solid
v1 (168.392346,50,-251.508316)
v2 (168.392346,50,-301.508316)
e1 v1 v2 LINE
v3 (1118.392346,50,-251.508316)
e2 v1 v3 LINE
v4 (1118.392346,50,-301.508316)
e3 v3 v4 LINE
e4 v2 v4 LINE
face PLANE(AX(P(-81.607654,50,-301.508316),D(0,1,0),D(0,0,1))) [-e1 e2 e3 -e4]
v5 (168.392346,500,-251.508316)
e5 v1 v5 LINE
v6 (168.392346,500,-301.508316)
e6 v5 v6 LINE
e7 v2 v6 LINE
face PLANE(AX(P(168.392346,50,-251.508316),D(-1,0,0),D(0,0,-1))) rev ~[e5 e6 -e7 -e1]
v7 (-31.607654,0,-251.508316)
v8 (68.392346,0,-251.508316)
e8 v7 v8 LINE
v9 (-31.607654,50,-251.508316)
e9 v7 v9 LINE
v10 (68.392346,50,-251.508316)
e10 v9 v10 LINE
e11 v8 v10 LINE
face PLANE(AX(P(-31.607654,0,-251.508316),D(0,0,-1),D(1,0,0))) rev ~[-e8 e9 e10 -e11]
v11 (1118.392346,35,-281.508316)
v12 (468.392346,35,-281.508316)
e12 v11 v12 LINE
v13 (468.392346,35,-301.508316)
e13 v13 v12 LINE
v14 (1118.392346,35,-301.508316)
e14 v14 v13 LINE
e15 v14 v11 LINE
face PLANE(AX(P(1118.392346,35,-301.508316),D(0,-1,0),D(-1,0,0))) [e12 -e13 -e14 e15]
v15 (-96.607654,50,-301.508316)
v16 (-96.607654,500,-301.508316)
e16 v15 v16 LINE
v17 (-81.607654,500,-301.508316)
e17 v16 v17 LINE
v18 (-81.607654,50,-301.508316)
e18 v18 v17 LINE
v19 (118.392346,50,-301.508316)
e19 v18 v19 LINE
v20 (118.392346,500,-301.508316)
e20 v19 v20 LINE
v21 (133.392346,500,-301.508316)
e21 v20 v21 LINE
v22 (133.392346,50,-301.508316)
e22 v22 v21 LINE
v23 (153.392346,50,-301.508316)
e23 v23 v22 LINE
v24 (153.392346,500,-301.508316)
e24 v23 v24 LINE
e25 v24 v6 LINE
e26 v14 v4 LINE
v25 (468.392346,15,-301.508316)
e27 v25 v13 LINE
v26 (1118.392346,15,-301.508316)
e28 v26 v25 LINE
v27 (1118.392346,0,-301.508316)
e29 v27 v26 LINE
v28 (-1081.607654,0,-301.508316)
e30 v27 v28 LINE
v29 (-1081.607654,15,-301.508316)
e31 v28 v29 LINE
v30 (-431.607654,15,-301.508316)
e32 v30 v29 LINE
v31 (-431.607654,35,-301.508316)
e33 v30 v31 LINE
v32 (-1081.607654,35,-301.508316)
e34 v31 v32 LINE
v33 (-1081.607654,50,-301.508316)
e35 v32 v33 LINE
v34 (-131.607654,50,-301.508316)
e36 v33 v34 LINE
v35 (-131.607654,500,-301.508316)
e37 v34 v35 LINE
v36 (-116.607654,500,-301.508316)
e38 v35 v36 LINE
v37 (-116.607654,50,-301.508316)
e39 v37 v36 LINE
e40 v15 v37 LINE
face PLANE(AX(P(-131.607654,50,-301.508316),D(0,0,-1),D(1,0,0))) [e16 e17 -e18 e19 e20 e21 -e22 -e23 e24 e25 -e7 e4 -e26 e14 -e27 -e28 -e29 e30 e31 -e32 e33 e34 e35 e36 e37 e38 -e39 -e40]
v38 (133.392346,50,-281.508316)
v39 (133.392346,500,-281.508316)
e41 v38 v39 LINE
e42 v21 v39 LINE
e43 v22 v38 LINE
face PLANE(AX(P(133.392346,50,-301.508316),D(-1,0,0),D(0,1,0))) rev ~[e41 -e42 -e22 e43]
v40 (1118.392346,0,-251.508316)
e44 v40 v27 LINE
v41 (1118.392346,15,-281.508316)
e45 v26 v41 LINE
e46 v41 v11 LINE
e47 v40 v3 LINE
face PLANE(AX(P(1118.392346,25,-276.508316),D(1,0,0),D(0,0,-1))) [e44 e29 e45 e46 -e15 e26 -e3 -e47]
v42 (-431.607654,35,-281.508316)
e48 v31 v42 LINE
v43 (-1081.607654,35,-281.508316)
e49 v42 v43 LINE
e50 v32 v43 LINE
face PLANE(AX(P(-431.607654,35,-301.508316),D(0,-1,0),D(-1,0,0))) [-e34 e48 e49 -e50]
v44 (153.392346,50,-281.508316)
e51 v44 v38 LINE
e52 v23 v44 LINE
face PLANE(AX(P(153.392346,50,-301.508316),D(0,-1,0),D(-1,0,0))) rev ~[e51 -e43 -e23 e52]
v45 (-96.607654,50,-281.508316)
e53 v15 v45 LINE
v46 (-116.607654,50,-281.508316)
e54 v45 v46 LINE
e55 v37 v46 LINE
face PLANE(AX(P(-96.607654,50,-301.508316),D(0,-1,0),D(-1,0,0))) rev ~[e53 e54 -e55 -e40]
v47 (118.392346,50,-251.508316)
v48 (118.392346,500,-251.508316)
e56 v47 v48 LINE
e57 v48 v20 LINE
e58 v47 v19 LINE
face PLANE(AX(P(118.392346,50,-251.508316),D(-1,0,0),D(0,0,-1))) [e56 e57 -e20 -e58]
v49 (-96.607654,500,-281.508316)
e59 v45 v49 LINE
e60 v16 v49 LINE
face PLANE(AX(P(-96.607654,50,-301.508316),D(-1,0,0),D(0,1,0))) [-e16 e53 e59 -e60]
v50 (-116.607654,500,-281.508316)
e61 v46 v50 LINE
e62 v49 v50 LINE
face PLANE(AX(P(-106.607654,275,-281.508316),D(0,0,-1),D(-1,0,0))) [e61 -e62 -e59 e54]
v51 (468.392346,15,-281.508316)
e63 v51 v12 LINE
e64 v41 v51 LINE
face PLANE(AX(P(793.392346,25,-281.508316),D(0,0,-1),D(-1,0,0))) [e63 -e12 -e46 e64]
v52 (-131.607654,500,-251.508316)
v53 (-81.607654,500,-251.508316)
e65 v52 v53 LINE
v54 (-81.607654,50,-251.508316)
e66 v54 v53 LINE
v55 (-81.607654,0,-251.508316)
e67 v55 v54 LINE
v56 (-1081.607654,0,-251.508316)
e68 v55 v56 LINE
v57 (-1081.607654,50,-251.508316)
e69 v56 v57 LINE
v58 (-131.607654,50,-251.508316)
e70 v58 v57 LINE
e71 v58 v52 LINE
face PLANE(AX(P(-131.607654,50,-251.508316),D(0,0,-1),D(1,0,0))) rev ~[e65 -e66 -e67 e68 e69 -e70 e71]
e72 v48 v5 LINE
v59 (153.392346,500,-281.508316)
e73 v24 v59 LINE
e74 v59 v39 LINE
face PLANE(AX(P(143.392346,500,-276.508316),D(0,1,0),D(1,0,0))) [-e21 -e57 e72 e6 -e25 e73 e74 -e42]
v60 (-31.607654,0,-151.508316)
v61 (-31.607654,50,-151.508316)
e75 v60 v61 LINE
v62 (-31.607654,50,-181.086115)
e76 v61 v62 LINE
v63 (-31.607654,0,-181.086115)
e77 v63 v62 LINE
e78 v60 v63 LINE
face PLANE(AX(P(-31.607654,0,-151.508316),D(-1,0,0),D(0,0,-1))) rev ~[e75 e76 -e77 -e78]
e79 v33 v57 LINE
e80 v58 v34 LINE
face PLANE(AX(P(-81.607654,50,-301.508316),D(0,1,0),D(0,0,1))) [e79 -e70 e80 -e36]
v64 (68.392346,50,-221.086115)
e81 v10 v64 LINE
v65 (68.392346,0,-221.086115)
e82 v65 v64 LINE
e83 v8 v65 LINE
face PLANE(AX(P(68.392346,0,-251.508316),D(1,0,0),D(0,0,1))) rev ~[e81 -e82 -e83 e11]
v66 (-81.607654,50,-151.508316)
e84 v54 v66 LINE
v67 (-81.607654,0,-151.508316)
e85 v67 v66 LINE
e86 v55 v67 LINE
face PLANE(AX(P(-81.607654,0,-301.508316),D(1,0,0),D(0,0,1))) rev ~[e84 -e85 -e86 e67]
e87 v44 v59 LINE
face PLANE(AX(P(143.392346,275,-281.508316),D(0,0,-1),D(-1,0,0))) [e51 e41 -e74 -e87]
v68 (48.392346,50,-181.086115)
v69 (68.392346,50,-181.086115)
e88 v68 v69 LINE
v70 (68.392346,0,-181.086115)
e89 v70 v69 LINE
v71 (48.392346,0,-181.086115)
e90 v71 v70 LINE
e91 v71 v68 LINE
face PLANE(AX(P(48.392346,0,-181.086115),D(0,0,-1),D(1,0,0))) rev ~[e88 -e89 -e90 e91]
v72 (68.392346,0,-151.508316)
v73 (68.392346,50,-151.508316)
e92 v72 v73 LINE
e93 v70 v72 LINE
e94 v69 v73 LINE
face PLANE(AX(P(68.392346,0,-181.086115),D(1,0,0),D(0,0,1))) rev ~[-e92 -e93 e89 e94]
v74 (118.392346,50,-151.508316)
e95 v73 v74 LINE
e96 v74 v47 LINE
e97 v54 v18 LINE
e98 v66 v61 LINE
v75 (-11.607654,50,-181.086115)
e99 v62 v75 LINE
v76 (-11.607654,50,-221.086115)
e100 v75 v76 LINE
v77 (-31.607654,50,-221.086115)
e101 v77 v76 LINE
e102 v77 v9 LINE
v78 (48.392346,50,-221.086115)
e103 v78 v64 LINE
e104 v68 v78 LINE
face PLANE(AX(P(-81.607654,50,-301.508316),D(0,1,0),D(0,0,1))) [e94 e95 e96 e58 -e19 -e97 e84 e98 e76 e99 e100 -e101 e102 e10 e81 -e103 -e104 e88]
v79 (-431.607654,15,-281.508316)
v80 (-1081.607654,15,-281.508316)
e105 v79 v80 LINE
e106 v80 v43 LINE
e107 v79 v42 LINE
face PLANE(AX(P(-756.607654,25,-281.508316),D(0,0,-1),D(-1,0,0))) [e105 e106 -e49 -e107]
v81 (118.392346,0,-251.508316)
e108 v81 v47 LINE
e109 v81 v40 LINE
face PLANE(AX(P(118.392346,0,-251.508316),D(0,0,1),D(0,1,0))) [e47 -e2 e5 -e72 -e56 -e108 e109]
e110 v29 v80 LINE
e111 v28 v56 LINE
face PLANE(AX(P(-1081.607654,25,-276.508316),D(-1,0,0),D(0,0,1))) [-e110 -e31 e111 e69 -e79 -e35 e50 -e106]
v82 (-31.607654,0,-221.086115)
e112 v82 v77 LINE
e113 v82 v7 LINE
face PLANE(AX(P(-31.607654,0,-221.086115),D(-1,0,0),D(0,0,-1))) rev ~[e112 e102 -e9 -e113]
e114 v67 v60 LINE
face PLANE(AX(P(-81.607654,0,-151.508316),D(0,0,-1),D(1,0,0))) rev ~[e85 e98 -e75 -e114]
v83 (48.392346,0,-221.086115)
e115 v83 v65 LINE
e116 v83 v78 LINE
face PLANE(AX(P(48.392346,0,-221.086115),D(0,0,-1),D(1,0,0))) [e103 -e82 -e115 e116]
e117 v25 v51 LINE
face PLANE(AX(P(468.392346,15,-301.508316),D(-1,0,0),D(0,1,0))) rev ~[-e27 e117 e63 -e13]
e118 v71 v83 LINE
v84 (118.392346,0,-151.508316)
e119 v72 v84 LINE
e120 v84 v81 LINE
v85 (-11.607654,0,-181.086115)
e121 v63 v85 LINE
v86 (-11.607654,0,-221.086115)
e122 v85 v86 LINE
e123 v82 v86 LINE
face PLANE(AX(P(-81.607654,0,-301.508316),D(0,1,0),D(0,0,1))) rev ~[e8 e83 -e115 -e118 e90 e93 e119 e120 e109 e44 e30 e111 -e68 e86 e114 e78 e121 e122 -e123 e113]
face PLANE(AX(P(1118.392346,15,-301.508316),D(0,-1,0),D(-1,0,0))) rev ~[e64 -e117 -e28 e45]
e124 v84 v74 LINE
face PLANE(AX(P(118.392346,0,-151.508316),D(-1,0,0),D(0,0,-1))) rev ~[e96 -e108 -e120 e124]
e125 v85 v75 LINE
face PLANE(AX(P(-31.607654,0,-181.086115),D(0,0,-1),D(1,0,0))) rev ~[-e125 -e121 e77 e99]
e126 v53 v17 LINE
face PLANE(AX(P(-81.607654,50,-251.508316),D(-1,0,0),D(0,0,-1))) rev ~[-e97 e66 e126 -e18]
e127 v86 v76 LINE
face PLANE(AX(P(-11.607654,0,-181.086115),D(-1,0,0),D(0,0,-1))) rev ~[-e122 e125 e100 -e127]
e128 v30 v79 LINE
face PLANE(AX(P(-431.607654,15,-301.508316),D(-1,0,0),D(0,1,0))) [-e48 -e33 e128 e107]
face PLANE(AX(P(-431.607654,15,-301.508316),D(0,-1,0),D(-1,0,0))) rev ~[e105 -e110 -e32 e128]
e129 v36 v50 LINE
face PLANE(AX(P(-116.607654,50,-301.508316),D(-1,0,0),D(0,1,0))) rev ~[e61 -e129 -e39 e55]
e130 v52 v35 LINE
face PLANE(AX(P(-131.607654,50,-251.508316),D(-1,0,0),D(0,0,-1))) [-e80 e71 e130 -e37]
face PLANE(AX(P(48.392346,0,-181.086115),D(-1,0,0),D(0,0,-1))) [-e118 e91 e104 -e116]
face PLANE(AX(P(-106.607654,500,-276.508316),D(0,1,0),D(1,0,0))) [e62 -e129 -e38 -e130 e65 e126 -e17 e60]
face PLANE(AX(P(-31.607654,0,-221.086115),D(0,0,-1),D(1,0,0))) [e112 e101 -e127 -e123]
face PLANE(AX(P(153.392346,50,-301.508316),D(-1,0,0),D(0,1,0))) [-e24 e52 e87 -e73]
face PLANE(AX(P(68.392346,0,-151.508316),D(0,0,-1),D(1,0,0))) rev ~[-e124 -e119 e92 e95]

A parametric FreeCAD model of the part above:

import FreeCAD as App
import Part
import Sketcher
from FreeCAD import Vector
Q = App.Units.Quantity


def add_polygon(sketch, points):
    """Adds a closed chain of lines whose ends are joined by coincident constraints."""
    first, n = sketch.GeometryCount, len(points)
    for a, b in zip(points, points[1:] + points[:1]):
        sketch.addGeometry(Part.LineSegment(App.Vector(*a, 0), App.Vector(*b, 0)), False)
    for i in range(n):
        sketch.addConstraint(Sketcher.Constraint("Coincident", first + i, 2, first + (i + 1) % n, 1))

doc = App.newDocument("Part")
body = doc.addObject("PartDesign::Body", "Body")

# Sketch on XZ plane
sketch1 = body.newObject("Sketcher::SketchObject", "Sketch")
sketch1.AttachmentSupport = (doc.getObject("XZ_Plane"), [""])
sketch1.MapMode = "FlatFace"
add_polygon(sketch1, [(-32, -252), (68, -252), (68, -221), (48, -221), (48, -181), (68, -181), (68, -152), (118, -152), (118, -302), (-82, -302), (-82, -152), (-32, -152), (-32, -181), (-12, -181), (-12, -221), (-32, -221)])  # lines 0-15
sketch1.addConstraint(Sketcher.Constraint("Horizontal", 0))
sketch1.addConstraint(Sketcher.Constraint("Vertical", 1))
sketch1.addConstraint(Sketcher.Constraint("Horizontal", 2))
sketch1.addConstraint(Sketcher.Constraint("Vertical", 3))
sketch1.addConstraint(Sketcher.Constraint("Horizontal", 4))
sketch1.addConstraint(Sketcher.Constraint("Vertical", 5))
sketch1.addConstraint(Sketcher.Constraint("Horizontal", 6))
sketch1.addConstraint(Sketcher.Constraint("Vertical", 7))
sketch1.addConstraint(Sketcher.Constraint("Horizontal", 8))
sketch1.addConstraint(Sketcher.Constraint("Vertical", 9))
sketch1.addConstraint(Sketcher.Constraint("Horizontal", 10))
sketch1.addConstraint(Sketcher.Constraint("Vertical", 11))
sketch1.addConstraint(Sketcher.Constraint("Horizontal", 12))
sketch1.addConstraint(Sketcher.Constraint("Vertical", 13))
sketch1.addConstraint(Sketcher.Constraint("Horizontal", 14))
sketch1.addConstraint(Sketcher.Constraint("Vertical", 15))
sketch1.addConstraint(Sketcher.Constraint("Horizontal", 6, 2, 9, 2))
sketch1.addConstraint(Sketcher.Constraint("Horizontal", 4, 2, 11, 2))
sketch1.addConstraint(Sketcher.Constraint("Horizontal", 2, 2, 13, 2))
sketch1.addConstraint(Sketcher.Constraint("Vertical", 1, 2, 4, 2))
sketch1.addConstraint(Sketcher.Constraint("Vertical", 11, 2, 14, 2))
sketch1.addConstraint(Sketcher.Constraint("Equal", 6, 10))
sketch1.addConstraint(Sketcher.Constraint("Equal", 4, 12))
sketch1.addConstraint(Sketcher.Constraint("DistanceX", 0, 1, 0, 2, Q("100 mm")))
sketch1.addConstraint(Sketcher.Constraint("DistanceX", 2, 2, 2, 1, Q("20 mm")))
sketch1.addConstraint(Sketcher.Constraint("DistanceX", 6, 1, 6, 2, Q("50 mm")))
sketch1.addConstraint(Sketcher.Constraint("DistanceY", 3, 1, 3, 2, Q("40 mm")))
sketch1.addConstraint(Sketcher.Constraint("DistanceY", 7, 2, 7, 1, Q("150 mm")))
sketch1.addConstraint(Sketcher.Constraint("DistanceY", 0, 2, 5, 2, Q("100 mm")))
sketch1.addConstraint(Sketcher.Constraint("DistanceY", 1, 1, 1, 2, Q("30.422201 mm")))
sketch1.addConstraint(Sketcher.Constraint("DistanceX", -1, 1, 0, 2, Q("68.392346 mm")))
sketch1.addConstraint(Sketcher.Constraint("DistanceY", 0, 2, -1, 1, Q("251.508316 mm")))
pad1 = body.newObject("PartDesign::Pad", "Pad")
pad1.Profile = sketch1
pad1.Length = 50
pad1.Reversed = True

# Sketch on YZ plane
sketch2 = body.newObject("Sketcher::SketchObject", "Sketch001")
sketch2.AttachmentSupport = (doc.getObject("YZ_Plane"), [""])
sketch2.MapMode = "FlatFace"
sketch2.AttachmentOffset = App.Placement(Vector(0, 0, 118.392346), App.Rotation())
add_polygon(sketch2, [(50, -252), (0, -252), (0, -302), (50, -302)])  # lines 0-3
sketch2.addConstraint(Sketcher.Constraint("Horizontal", 0))
sketch2.addConstraint(Sketcher.Constraint("Vertical", 1))
sketch2.addConstraint(Sketcher.Constraint("Horizontal", 2))
sketch2.addConstraint(Sketcher.Constraint("Vertical", 3))
sketch2.addConstraint(Sketcher.Constraint("PointOnObject", 0, 2, -2))
sketch2.addConstraint(Sketcher.Constraint("Equal", 2, 1))
sketch2.addConstraint(Sketcher.Constraint("DistanceX", 0, 2, 0, 1, Q("50 mm")))
sketch2.addConstraint(Sketcher.Constraint("DistanceY", 0, 2, -1, 1, Q("251.508316 mm")))
pad2 = body.newObject("PartDesign::Pad", "Pad001")
pad2.Profile = sketch2
pad2.Length = 1000

# Sketch on YZ plane
sketch3 = body.newObject("Sketcher::SketchObject", "Sketch002")
sketch3.AttachmentSupport = (doc.getObject("YZ_Plane"), [""])
sketch3.MapMode = "FlatFace"
sketch3.AttachmentOffset = App.Placement(Vector(0, 0, -81.607654), App.Rotation())
add_polygon(sketch3, [(50, -302), (0, -302), (0, -252), (50, -252)])  # lines 0-3
sketch3.addConstraint(Sketcher.Constraint("Horizontal", 0))
sketch3.addConstraint(Sketcher.Constraint("Vertical", 1))
sketch3.addConstraint(Sketcher.Constraint("Horizontal", 2))
sketch3.addConstraint(Sketcher.Constraint("Vertical", 3))
sketch3.addConstraint(Sketcher.Constraint("PointOnObject", 0, 2, -2))
sketch3.addConstraint(Sketcher.Constraint("Equal", 2, 1))
sketch3.addConstraint(Sketcher.Constraint("DistanceX", 0, 2, 0, 1, Q("50 mm")))
sketch3.addConstraint(Sketcher.Constraint("DistanceY", 0, 2, -1, 1, Q("301.508316 mm")))
pad3 = body.newObject("PartDesign::Pad", "Pad002")
pad3.Profile = sketch3
pad3.Length = 1000
pad3.Reversed = True

# Sketch on XZ plane
sketch4 = body.newObject("Sketcher::SketchObject", "Sketch003")
sketch4.AttachmentSupport = (doc.getObject("XZ_Plane"), [""])
sketch4.MapMode = "FlatFace"
sketch4.AttachmentOffset = App.Placement(Vector(0, 0, -50), App.Rotation())
add_polygon(sketch4, [(-132, -302), (-132, -252), (-82, -252), (-82, -302)])  # lines 0-3
add_polygon(sketch4, [(118, -302), (118, -252), (168, -252), (168, -302)])  # lines 4-7
sketch4.addConstraint(Sketcher.Constraint("Vertical", 0))
sketch4.addConstraint(Sketcher.Constraint("Horizontal", 1))
sketch4.addConstraint(Sketcher.Constraint("Vertical", 2))
sketch4.addConstraint(Sketcher.Constraint("Horizontal", 3))
sketch4.addConstraint(Sketcher.Constraint("Vertical", 4))
sketch4.addConstraint(Sketcher.Constraint("Horizontal", 5))
sketch4.addConstraint(Sketcher.Constraint("Vertical", 6))
sketch4.addConstraint(Sketcher.Constraint("Horizontal", 7))
sketch4.addConstraint(Sketcher.Constraint("Horizontal", 1, 2, 4, 2))
sketch4.addConstraint(Sketcher.Constraint("Horizontal", 3, 2, 6, 2))
sketch4.addConstraint(Sketcher.Constraint("Equal", 3, 5))
sketch4.addConstraint(Sketcher.Constraint("Equal", 7, 0))
sketch4.addConstraint(Sketcher.Constraint("DistanceX", 1, 1, 1, 2, Q("50 mm")))
sketch4.addConstraint(Sketcher.Constraint("DistanceX", 1, 2, 4, 2, Q("200 mm")))
sketch4.addConstraint(Sketcher.Constraint("DistanceX", 0, 2, -1, 1, Q("131.607654 mm")))
sketch4.addConstraint(Sketcher.Constraint("DistanceY", 0, 2, -1, 1, Q("251.508316 mm")))
pad4 = body.newObject("PartDesign::Pad", "Pad003")
pad4.Profile = sketch4
pad4.Length = 450
pad4.Reversed = True

# Sketch on XY plane
sketch5 = body.newObject("Sketcher::SketchObject", "Sketch004")
sketch5.AttachmentSupport = (doc.getObject("XY_Plane"), [""])
sketch5.MapMode = "FlatFace"
sketch5.AttachmentOffset = App.Placement(Vector(0, 0, -301.508316), App.Rotation())
add_polygon(sketch5, [(-432, 35), (-432, 15), (-1082, 15), (-1082, 35)])  # lines 0-3
add_polygon(sketch5, [(1118, 35), (1118, 15), (468, 15), (468, 35)])  # lines 4-7
sketch5.addConstraint(Sketcher.Constraint("Vertical", 0))
sketch5.addConstraint(Sketcher.Constraint("Horizontal", 1))
sketch5.addConstraint(Sketcher.Constraint("Vertical", 2))
sketch5.addConstraint(Sketcher.Constraint("Horizontal", 3))
sketch5.addConstraint(Sketcher.Constraint("Vertical", 4))
sketch5.addConstraint(Sketcher.Constraint("Horizontal", 5))
sketch5.addConstraint(Sketcher.Constraint("Vertical", 6))
sketch5.addConstraint(Sketcher.Constraint("Horizontal", 7))
sketch5.addConstraint(Sketcher.Constraint("Horizontal", 1, 2, 4, 2))
sketch5.addConstraint(Sketcher.Constraint("Horizontal", 3, 2, 6, 2))
sketch5.addConstraint(Sketcher.Constraint("Equal", 3, 5))
sketch5.addConstraint(Sketcher.Constraint("DistanceX", 1, 2, 1, 1, Q("650 mm")))
sketch5.addConstraint(Sketcher.Constraint("DistanceY", 0, 2, 0, 1, Q("20 mm")))
sketch5.addConstraint(Sketcher.Constraint("DistanceY", -1, 1, 0, 2, Q("15 mm")))
sketch5.addConstraint(Sketcher.Constraint("DistanceX", 0, 2, 4, 2, Q("1550 mm")))
sketch5.addConstraint(Sketcher.Constraint("DistanceX", 0, 2, -1, 1, Q("431.607654 mm")))
pocket1 = body.newObject("PartDesign::Pocket", "Pocket")
pocket1.Profile = sketch5
pocket1.Length = 20
pocket1.Reversed = True

# Sketch on XY plane
sketch6 = body.newObject("Sketcher::SketchObject", "Sketch005")
sketch6.AttachmentSupport = (doc.getObject("XY_Plane"), [""])
sketch6.MapMode = "FlatFace"
sketch6.AttachmentOffset = App.Placement(Vector(0, 0, -301.508316), App.Rotation())
add_polygon(sketch6, [(153, 500), (153, 50), (133, 50), (133, 500)])  # lines 0-3
add_polygon(sketch6, [(-97, 500), (-97, 50), (-117, 50), (-117, 500)])  # lines 4-7
sketch6.addConstraint(Sketcher.Constraint("Vertical", 0))
sketch6.addConstraint(Sketcher.Constraint("Horizontal", 1))
sketch6.addConstraint(Sketcher.Constraint("Vertical", 2))
sketch6.addConstraint(Sketcher.Constraint("Horizontal", 3))
sketch6.addConstraint(Sketcher.Constraint("Vertical", 4))
sketch6.addConstraint(Sketcher.Constraint("Horizontal", 5))
sketch6.addConstraint(Sketcher.Constraint("Vertical", 6))
sketch6.addConstraint(Sketcher.Constraint("Horizontal", 7))
sketch6.addConstraint(Sketcher.Constraint("Horizontal", 1, 2, 4, 2))
sketch6.addConstraint(Sketcher.Constraint("Horizontal", 3, 2, 6, 2))
sketch6.addConstraint(Sketcher.Constraint("Equal", 3, 5))
sketch6.addConstraint(Sketcher.Constraint("DistanceX", 1, 2, 1, 1, Q("20 mm")))
sketch6.addConstraint(Sketcher.Constraint("DistanceY", 0, 2, 0, 1, Q("450 mm")))
sketch6.addConstraint(Sketcher.Constraint("DistanceY", -1, 1, 0, 2, Q("50 mm")))
sketch6.addConstraint(Sketcher.Constraint("DistanceX", 4, 2, 1, 2, Q("230 mm")))
sketch6.addConstraint(Sketcher.Constraint("DistanceX", -1, 1, 0, 2, Q("153.392346 mm")))
pocket2 = body.newObject("PartDesign::Pocket", "Pocket001")
pocket2.Profile = sketch6
pocket2.Length = 20
pocket2.Reversed = True

doc.recompute()
